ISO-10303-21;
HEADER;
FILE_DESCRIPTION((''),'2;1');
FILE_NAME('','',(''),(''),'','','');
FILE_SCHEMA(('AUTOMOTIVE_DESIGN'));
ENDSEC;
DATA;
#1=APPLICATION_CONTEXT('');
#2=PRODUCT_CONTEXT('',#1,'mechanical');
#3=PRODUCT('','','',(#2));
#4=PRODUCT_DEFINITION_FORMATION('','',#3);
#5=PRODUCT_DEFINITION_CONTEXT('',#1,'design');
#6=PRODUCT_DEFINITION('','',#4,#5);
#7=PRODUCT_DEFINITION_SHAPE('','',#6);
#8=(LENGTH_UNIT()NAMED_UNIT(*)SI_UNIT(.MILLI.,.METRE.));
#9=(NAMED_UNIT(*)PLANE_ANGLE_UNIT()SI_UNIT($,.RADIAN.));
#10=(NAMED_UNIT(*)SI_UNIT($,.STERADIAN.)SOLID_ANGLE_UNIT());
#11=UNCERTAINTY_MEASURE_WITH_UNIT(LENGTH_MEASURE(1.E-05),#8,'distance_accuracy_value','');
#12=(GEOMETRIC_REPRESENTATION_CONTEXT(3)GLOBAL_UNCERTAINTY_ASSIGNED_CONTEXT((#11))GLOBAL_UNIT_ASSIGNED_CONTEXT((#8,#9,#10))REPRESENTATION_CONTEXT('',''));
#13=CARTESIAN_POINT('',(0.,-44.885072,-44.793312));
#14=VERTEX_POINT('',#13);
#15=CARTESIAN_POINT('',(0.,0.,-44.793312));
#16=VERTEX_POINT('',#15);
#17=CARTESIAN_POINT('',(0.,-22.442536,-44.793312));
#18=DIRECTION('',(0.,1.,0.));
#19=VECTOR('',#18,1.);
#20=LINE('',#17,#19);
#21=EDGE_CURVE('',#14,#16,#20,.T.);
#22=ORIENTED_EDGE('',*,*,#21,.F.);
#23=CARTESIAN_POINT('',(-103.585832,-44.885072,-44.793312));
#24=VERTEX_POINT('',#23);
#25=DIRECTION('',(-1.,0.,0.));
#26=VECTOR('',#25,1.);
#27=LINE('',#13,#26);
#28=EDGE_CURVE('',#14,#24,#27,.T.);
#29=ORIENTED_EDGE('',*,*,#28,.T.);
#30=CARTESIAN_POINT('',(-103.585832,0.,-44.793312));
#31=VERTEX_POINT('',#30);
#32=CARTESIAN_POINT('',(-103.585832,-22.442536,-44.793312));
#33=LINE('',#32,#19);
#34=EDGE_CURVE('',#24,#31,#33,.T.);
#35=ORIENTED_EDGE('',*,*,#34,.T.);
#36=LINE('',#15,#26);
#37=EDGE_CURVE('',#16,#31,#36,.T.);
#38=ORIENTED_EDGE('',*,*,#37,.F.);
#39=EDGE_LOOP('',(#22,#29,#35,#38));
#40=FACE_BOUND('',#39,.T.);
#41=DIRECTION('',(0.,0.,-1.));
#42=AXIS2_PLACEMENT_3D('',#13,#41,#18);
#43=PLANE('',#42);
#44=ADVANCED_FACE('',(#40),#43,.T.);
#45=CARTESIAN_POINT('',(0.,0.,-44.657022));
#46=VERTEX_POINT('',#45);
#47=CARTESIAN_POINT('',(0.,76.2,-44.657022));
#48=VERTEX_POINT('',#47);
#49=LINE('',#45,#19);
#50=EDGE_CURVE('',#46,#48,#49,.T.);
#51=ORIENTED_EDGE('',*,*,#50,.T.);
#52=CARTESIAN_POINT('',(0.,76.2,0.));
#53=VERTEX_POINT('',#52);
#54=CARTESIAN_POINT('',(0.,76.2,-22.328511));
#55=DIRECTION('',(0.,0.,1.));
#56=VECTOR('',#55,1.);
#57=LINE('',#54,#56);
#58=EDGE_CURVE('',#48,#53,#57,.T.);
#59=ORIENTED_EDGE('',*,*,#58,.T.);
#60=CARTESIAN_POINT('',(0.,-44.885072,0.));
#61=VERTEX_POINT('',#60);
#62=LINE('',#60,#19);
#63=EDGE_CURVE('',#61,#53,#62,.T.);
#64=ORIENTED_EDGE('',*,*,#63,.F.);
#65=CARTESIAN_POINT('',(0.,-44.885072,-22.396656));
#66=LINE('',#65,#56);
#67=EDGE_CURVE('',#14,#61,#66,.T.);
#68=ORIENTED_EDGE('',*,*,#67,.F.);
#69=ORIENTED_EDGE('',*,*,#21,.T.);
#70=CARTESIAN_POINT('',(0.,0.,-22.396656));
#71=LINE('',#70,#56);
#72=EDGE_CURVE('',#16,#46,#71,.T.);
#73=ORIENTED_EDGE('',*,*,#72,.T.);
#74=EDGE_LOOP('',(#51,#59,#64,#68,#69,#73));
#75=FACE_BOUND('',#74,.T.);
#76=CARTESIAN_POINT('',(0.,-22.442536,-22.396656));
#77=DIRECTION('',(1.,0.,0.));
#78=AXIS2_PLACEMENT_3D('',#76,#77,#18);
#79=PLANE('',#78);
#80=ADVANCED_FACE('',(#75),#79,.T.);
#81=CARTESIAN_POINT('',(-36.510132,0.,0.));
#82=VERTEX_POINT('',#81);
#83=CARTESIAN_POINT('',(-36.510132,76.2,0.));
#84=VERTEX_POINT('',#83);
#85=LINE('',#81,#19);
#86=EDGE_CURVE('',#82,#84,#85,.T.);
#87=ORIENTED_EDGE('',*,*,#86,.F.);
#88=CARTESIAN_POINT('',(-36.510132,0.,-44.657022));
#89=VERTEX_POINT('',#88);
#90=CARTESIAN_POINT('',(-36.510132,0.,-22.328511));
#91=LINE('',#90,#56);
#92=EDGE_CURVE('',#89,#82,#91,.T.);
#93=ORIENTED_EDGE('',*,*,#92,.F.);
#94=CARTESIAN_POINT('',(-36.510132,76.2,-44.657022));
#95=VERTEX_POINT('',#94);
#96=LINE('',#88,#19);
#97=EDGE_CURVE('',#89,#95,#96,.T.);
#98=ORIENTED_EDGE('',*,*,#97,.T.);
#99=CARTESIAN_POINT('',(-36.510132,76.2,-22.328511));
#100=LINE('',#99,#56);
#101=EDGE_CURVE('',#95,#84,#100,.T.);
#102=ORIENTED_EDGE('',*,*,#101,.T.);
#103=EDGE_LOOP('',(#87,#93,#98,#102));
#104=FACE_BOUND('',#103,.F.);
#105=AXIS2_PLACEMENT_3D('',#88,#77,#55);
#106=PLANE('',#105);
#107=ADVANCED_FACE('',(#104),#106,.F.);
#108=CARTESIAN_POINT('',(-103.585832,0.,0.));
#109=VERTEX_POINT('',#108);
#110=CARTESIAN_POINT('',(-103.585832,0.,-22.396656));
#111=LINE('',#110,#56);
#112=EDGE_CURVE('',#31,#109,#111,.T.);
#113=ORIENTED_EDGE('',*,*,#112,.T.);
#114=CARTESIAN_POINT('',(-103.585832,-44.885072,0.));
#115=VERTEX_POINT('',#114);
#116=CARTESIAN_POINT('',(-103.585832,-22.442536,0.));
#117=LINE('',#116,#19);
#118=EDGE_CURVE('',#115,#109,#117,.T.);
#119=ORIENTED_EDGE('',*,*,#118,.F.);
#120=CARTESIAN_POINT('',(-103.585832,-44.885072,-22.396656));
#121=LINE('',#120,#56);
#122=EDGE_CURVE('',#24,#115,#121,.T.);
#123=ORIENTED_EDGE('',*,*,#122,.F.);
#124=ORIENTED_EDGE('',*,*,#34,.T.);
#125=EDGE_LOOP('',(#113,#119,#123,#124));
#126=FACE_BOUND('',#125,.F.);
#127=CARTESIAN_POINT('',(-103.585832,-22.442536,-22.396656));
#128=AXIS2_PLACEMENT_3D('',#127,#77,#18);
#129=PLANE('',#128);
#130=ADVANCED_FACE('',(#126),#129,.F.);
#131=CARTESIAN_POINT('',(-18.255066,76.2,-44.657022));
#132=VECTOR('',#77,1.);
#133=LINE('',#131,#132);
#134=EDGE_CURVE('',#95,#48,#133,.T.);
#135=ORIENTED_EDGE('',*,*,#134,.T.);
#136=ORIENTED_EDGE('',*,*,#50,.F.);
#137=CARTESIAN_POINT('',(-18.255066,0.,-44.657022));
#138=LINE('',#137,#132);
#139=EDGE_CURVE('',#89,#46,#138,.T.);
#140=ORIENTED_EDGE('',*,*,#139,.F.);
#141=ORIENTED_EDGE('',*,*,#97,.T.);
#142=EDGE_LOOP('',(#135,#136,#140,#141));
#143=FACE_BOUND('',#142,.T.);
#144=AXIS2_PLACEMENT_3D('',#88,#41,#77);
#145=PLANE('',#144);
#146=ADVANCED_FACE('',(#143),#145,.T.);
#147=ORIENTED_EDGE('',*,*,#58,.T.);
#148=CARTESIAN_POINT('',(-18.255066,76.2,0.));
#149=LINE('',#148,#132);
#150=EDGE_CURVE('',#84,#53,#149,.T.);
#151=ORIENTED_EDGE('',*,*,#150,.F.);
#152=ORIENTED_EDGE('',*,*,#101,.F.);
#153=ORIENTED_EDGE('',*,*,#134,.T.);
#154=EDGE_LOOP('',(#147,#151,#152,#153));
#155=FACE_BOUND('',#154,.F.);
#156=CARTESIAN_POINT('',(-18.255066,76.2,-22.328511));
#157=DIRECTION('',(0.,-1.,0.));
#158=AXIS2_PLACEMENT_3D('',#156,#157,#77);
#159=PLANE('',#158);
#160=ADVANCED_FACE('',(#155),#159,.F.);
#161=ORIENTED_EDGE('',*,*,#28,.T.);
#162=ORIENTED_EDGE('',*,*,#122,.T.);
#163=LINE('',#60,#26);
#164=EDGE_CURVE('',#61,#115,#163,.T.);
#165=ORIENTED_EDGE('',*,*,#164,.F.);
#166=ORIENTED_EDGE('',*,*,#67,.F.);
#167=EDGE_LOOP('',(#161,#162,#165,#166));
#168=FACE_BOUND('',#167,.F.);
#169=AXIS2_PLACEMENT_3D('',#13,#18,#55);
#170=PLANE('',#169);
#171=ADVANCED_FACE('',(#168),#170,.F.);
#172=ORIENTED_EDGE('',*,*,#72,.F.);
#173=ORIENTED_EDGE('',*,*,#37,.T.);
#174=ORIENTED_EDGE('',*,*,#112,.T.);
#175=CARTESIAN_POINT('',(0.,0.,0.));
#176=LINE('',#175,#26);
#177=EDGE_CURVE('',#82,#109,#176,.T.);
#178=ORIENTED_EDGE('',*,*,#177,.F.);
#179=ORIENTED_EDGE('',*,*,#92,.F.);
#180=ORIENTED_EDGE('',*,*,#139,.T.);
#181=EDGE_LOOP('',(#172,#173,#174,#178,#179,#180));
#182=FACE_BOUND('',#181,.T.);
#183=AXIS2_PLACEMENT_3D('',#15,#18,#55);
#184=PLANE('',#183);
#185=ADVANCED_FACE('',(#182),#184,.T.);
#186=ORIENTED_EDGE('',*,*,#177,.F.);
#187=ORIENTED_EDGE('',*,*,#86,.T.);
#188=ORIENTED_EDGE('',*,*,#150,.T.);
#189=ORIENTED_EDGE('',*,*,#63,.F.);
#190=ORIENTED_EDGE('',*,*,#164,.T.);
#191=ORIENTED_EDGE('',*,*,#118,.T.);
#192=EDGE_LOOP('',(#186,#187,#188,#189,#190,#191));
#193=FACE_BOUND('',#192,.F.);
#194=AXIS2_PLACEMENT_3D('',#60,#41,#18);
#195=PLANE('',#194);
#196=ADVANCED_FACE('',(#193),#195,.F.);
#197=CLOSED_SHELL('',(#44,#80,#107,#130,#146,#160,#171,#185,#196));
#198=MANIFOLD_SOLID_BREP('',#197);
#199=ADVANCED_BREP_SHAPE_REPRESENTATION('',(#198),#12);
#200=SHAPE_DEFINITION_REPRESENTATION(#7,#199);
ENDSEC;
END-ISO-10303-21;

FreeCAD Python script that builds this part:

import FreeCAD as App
import Part
import Sketcher
Q = App.Units.Quantity


def add_polygon(sketch, points):
    """Adds a closed chain of lines whose ends are joined by coincident constraints."""
    first, n = sketch.GeometryCount, len(points)
    for a, b in zip(points, points[1:] + points[:1]):
        sketch.addGeometry(Part.LineSegment(App.Vector(*a, 0), App.Vector(*b, 0)), False)
    for i in range(n):
        sketch.addConstraint(Sketcher.Constraint("Coincident", first + i, 2, first + (i + 1) % n, 1))

doc = App.newDocument("Part")
body = doc.addObject("PartDesign::Body", "Body")

# Sketch on XZ plane
sketch1 = body.newObject("Sketcher::SketchObject", "Sketch")
sketch1.AttachmentSupport = (doc.getObject("XZ_Plane"), [""])
sketch1.MapMode = "FlatFace"
add_polygon(sketch1, [(-37, 0), (-37, -45), (0, -45), (0, 0)])  # lines 0-3
sketch1.addConstraint(Sketcher.Constraint("Vertical", 0))
sketch1.addConstraint(Sketcher.Constraint("Horizontal", 1))
sketch1.addConstraint(Sketcher.Constraint("Vertical", 2))
sketch1.addConstraint(Sketcher.Constraint("Horizontal", 3))
sketch1.addConstraint(Sketcher.Constraint("Coincident", 2, 2, -1, 1))
sketch1.addConstraint(Sketcher.Constraint("DistanceY", 0, 2, 0, 1, Q("44.657022 mm")))
sketch1.addConstraint(Sketcher.Constraint("DistanceX", 1, 1, 1, 2, Q("36.510132 mm")))
pad1 = body.newObject("PartDesign::Pad", "Pad")
pad1.Profile = sketch1
pad1.Length = Q("3 in")
pad1.Reversed = True

# Sketch on YZ plane
sketch2 = body.newObject("Sketcher::SketchObject", "Sketch001")
sketch2.AttachmentSupport = (doc.getObject("YZ_Plane"), [""])
sketch2.MapMode = "FlatFace"
add_polygon(sketch2, [(-45, 0), (-45, -45), (0, -45), (0, 0)])  # lines 0-3
sketch2.addConstraint(Sketcher.Constraint("Vertical", 0))
sketch2.addConstraint(Sketcher.Constraint("Horizontal", 1))
sketch2.addConstraint(Sketcher.Constraint("Vertical", 2))
sketch2.addConstraint(Sketcher.Constraint("Horizontal", 3))
sketch2.addConstraint(Sketcher.Constraint("Coincident", 2, 2, -1, 1))
sketch2.addConstraint(Sketcher.Constraint("DistanceX", 1, 1, 1, 2, Q("44.885072 mm")))
sketch2.addConstraint(Sketcher.Constraint("DistanceY", 0, 2, 0, 1, Q("44.793312 mm")))
pad2 = body.newObject("PartDesign::Pad", "Pad001")
pad2.Profile = sketch2
pad2.Length = 103.585832
pad2.Reversed = True

doc.recompute()
